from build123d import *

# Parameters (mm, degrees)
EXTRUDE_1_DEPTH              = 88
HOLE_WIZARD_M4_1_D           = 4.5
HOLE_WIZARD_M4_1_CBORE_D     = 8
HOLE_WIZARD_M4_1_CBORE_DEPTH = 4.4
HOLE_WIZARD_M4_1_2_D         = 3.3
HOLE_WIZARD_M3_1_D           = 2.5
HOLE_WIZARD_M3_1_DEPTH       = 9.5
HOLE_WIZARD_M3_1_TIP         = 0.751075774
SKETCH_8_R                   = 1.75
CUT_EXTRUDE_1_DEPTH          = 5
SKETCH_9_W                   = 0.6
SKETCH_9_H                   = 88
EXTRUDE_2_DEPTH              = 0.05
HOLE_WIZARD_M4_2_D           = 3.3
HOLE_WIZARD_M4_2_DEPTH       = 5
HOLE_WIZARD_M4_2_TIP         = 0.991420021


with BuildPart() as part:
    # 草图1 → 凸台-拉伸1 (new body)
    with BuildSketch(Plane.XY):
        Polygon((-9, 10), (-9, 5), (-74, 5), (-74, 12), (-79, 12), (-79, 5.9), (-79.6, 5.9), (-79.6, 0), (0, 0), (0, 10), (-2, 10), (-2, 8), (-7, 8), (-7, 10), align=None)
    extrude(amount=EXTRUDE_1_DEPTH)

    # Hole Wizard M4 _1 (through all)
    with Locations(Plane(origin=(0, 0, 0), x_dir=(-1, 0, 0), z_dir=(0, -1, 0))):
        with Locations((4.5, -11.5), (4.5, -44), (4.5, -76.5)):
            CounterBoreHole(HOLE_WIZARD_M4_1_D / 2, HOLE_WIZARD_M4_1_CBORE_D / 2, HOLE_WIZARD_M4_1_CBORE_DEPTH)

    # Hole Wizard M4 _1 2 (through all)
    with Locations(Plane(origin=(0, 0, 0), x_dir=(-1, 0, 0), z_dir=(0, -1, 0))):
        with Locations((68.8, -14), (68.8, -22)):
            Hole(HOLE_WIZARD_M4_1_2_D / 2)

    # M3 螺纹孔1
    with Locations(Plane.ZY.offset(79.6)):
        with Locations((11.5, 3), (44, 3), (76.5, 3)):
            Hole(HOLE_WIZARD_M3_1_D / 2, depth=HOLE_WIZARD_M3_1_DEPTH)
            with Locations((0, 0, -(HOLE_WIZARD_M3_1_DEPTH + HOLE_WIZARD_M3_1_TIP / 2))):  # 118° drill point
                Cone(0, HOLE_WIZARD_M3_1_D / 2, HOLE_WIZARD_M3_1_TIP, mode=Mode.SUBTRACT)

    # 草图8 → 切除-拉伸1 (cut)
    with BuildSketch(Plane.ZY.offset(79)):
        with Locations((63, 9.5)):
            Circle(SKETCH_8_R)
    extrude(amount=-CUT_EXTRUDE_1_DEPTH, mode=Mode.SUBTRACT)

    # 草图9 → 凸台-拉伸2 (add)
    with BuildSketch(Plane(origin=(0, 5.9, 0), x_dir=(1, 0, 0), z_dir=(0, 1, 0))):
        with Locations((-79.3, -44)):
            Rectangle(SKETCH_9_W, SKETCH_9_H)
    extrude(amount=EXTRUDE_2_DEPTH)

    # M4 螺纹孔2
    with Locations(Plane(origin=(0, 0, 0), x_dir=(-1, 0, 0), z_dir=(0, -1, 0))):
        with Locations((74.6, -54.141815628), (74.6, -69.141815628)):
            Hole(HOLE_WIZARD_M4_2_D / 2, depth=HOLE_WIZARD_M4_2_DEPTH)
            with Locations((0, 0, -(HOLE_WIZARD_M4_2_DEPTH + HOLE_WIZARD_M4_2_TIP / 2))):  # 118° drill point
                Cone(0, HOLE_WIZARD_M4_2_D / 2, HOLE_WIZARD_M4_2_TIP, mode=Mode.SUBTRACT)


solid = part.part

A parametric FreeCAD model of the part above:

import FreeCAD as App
import Part
import Sketcher
from FreeCAD import Vector


def add_polygon(sketch, points):
    """Adds a closed chain of lines whose ends are joined by coincident constraints."""
    first, n = sketch.GeometryCount, len(points)
    for a, b in zip(points, points[1:] + points[:1]):
        sketch.addGeometry(Part.LineSegment(App.Vector(*a, 0), App.Vector(*b, 0)), False)
    for i in range(n):
        sketch.addConstraint(Sketcher.Constraint("Coincident", first + i, 2, first + (i + 1) % n, 1))

doc = App.newDocument("Part")
params = doc.addObject("Spreadsheet::Sheet", "Params")
for row, (alias, value) in enumerate([
    ("sketch1_width", "65 mm"),
    ("sketch1_width2", "5 mm"),
    ("sketch1_width3", "2 mm"),
    ("sketch1_height", "7 mm"),
    ("sketch1_height2", "10 mm"),
    ("pad1_length", "88 mm"),
    ("sketch2_diameter", "4.5 mm"),
    ("hole_diameter", "4.5 mm"),
    ("hole_cbore_diameter", "8 mm"),
    ("hole_cbore_depth", "4.4 mm"),
    ("sketch3_diameter", "3.3 mm"),
    ("hole2_diameter", "3.3 mm"),
    ("sketch4_diameter", "2.5 mm"),
    ("hole3_diameter", "2.5 mm"),
    ("hole3_depth", "9.5 mm"),
    ("sketch5_diameter", "3.5 mm"),
    ("pocket1_length", "5 mm"),
    ("sketch6_height", "88 mm"),
    ("sketch6_width", "0.6 mm"),
    ("pad2_length", "0.05 mm"),
    ("sketch7_diameter", "3.3 mm"),
    ("hole4_diameter", "3.3 mm"),
    ("hole4_depth", "5 mm"),
], start=1):
    params.set(f"A{row}", alias)
    params.set(f"B{row}", "=" + value)
    params.setAlias(f"B{row}", alias)

body = doc.addObject("PartDesign::Body", "Body")

# Sketch on XY plane
sketch1 = body.newObject("Sketcher::SketchObject", "Sketch")
sketch1.AttachmentSupport = (doc.getObject("XY_Plane"), [""])
sketch1.MapMode = "FlatFace"
add_polygon(sketch1, [(-9, 10), (-9, 5), (-74, 5), (-74, 12), (-79, 12), (-79, 5.9), (-79.6, 5.9), (-79.6, 0), (0, 0), (0, 10), (-2, 10), (-2, 8), (-7, 8), (-7, 10)])  # lines 0-13
sketch1.addConstraint([
    Sketcher.Constraint("Vertical", 0),
    Sketcher.Constraint("Horizontal", 1),
    Sketcher.Constraint("Vertical", 2),
    Sketcher.Constraint("Horizontal", 3),
    Sketcher.Constraint("Vertical", 4),
    Sketcher.Constraint("Horizontal", 5),
    Sketcher.Constraint("Vertical", 6),
    Sketcher.Constraint("Horizontal", 7),
    Sketcher.Constraint("Vertical", 8),
    Sketcher.Constraint("Horizontal", 9),
    Sketcher.Constraint("Vertical", 10),
    Sketcher.Constraint("Horizontal", 11),
    Sketcher.Constraint("Vertical", 12),
    Sketcher.Constraint("Horizontal", 13),
    Sketcher.Constraint("Coincident", 7, 2, -1, 1),
    Sketcher.Constraint("Horizontal", 9, 2, 12, 2),
    Sketcher.Constraint("Equal", 3, 11),
    Sketcher.Constraint("Equal", 9, 13),
    Sketcher.Constraint("Equal", 11, 0),
    Sketcher.Constraint("Equal", 13, 10),
    Sketcher.Constraint("DistanceX", 1, 2, 1, 1, 65.0),
    Sketcher.Constraint("DistanceX", 3, 2, 3, 1, 5.0),
    Sketcher.Constraint("DistanceX", 9, 2, 9, 1, 2.0),
    Sketcher.Constraint("DistanceY", 2, 1, 2, 2, 7.0),
    Sketcher.Constraint("DistanceY", 8, 1, 8, 2, 10.0),
    Sketcher.Constraint("DistanceX", 5, 2, 5, 1, 0.6),
    Sketcher.Constraint("DistanceY", 4, 2, 4, 1, 6.1),
])
sketch1.setExpression("Constraints[34]", "Params.sketch1_width")
sketch1.setExpression("Constraints[35]", "Params.sketch1_width2")
sketch1.setExpression("Constraints[36]", "Params.sketch1_width3")
sketch1.setExpression("Constraints[37]", "Params.sketch1_height")
sketch1.setExpression("Constraints[38]", "Params.sketch1_height2")
pad1 = body.newObject("PartDesign::Pad", "Pad")
pad1.Profile = sketch1
pad1.setExpression("Length", "Params.pad1_length")

# Sketch on XZ plane
sketch2 = body.newObject("Sketcher::SketchObject", "Sketch001")
sketch2.AttachmentSupport = (doc.getObject("XZ_Plane"), [""])
sketch2.MapMode = "FlatFace"
sketch2.addGeometry([
    Part.Circle(Vector(-4.5, 11.5, 0), Vector(0, 0, 1), 2.2),
    Part.Circle(Vector(-4.5, 44, 0), Vector(0, 0, 1), 2.2),
    Part.Circle(Vector(-4.5, 76.5, 0), Vector(0, 0, 1), 2.2),
], False)
sketch2.addConstraint([
    Sketcher.Constraint("Equal", 0, 1),
    Sketcher.Constraint("Equal", 1, 2),
    Sketcher.Constraint("Vertical", 0, 3, 1, 3),
    Sketcher.Constraint("Vertical", 1, 3, 2, 3),
    Sketcher.Constraint("Diameter", 0, 4.5),
    Sketcher.Constraint("DistanceY", -1, 1, 1, 3, 44.0),
    Sketcher.Constraint("DistanceY", 0, 3, 2, 3, 65.0),
    Sketcher.Constraint("DistanceX", 0, 3, -1, 1, 4.5),
    Sketcher.Constraint("DistanceY", -1, 1, 0, 3, 11.5),
])
sketch2.setExpression("Constraints[4]", "Params.sketch2_diameter")
doc.recompute()
hole = body.newObject("PartDesign::Hole", "Hole")
hole.Profile = sketch2
hole.ThreadType = "None"
hole.setExpression("Diameter", "Params.hole_diameter")
hole.DepthType = "ThroughAll"
hole.HoleCutType = "Counterbore"
hole.setExpression("HoleCutDiameter", "Params.hole_cbore_diameter")
hole.setExpression("HoleCutDepth", "Params.hole_cbore_depth")

# Sketch on XZ plane
sketch3 = body.newObject("Sketcher::SketchObject", "Sketch002")
sketch3.AttachmentSupport = (doc.getObject("XZ_Plane"), [""])
sketch3.MapMode = "FlatFace"
sketch3.addGeometry([
    Part.Circle(Vector(-68.8, 14, 0), Vector(0, 0, 1), 1.6),
    Part.Circle(Vector(-68.8, 22, 0), Vector(0, 0, 1), 1.6),
], False)
sketch3.addConstraint([
    Sketcher.Constraint("Equal", 0, 1),
    Sketcher.Constraint("Vertical", 0, 3, 1, 3),
    Sketcher.Constraint("Diameter", 0, 3.3),
    Sketcher.Constraint("DistanceY", -1, 1, 0, 3, 14.0),
    Sketcher.Constraint("DistanceY", -1, 1, 1, 3, 22.0),
    Sketcher.Constraint("DistanceX", 0, 3, -1, 1, 68.8),
])
sketch3.setExpression("Constraints[2]", "Params.sketch3_diameter")
doc.recompute()
hole2 = body.newObject("PartDesign::Hole", "Hole001")
hole2.Profile = sketch3
hole2.ThreadType = "None"
hole2.setExpression("Diameter", "Params.hole2_diameter")
hole2.DepthType = "ThroughAll"

# Sketch on YZ plane
sketch4 = body.newObject("Sketcher::SketchObject", "Sketch003")
sketch4.AttachmentSupport = (doc.getObject("YZ_Plane"), [""])
sketch4.MapMode = "FlatFace"
sketch4.AttachmentOffset = App.Placement(Vector(0, 0, -79.6), App.Rotation())
sketch4.addGeometry([
    Part.Circle(Vector(3, 11.5, 0), Vector(0, 0, 1), 1.2),
    Part.Circle(Vector(3, 44, 0), Vector(0, 0, 1), 1.2),
    Part.Circle(Vector(3, 76.5, 0), Vector(0, 0, 1), 1.2),
], False)
sketch4.addConstraint([
    Sketcher.Constraint("Equal", 0, 1),
    Sketcher.Constraint("Equal", 1, 2),
    Sketcher.Constraint("Vertical", 0, 3, 1, 3),
    Sketcher.Constraint("Vertical", 1, 3, 2, 3),
    Sketcher.Constraint("Diameter", 0, 2.5),
    Sketcher.Constraint("DistanceX", -1, 1, 0, 3, 3.0),
    Sketcher.Constraint("DistanceY", -1, 1, 1, 3, 44.0),
    Sketcher.Constraint("DistanceY", 0, 3, 2, 3, 65.0),
    Sketcher.Constraint("DistanceY", -1, 1, 0, 3, 11.5),
])
sketch4.setExpression("Constraints[4]", "Params.sketch4_diameter")
doc.recompute()
hole3 = body.newObject("PartDesign::Hole", "Hole002")
hole3.Profile = sketch4
hole3.ThreadType = "None"
hole3.setExpression("Diameter", "Params.hole3_diameter")
hole3.DepthType = "Dimension"
hole3.setExpression("Depth", "Params.hole3_depth")
hole3.DrillPoint = "Angled"
hole3.DrillPointAngle = 118
hole3.Reversed = True

# Sketch on YZ plane
sketch5 = body.newObject("Sketcher::SketchObject", "Sketch004")
sketch5.AttachmentSupport = (doc.getObject("YZ_Plane"), [""])
sketch5.MapMode = "FlatFace"
sketch5.AttachmentOffset = App.Placement(Vector(0, 0, -79), App.Rotation())
sketch5.addGeometry(Part.Circle(Vector(9.5, 63, 0), Vector(0, 0, 1), 1.8), False)
sketch5.addConstraint([
    Sketcher.Constraint("Diameter", 0, 3.5),
    Sketcher.Constraint("DistanceY", -1, 1, 0, 3, 63.0),
    Sketcher.Constraint("DistanceX", -1, 1, 0, 3, 9.5),
])
sketch5.setExpression("Constraints[0]", "Params.sketch5_diameter")
pocket1 = body.newObject("PartDesign::Pocket", "Pocket")
pocket1.Profile = sketch5
pocket1.setExpression("Length", "Params.pocket1_length")
pocket1.Reversed = True

# Sketch on XZ plane
sketch6 = body.newObject("Sketcher::SketchObject", "Sketch005")
sketch6.AttachmentSupport = (doc.getObject("XZ_Plane"), [""])
sketch6.MapMode = "FlatFace"
sketch6.AttachmentOffset = App.Placement(Vector(0, 0, -5.9), App.Rotation())
add_polygon(sketch6, [(-79.6, 0), (-79.6, 88), (-79, 88), (-79, 0)])  # lines 0-3
sketch6.addConstraint([
    Sketcher.Constraint("Vertical", 0),
    Sketcher.Constraint("Horizontal", 1),
    Sketcher.Constraint("Vertical", 2),
    Sketcher.Constraint("Horizontal", 3),
    Sketcher.Constraint("PointOnObject", 2, 2, -1),
    Sketcher.Constraint("DistanceY", 0, 1, 0, 2, 88.0),
    Sketcher.Constraint("DistanceX", 1, 1, 1, 2, 0.6),
    Sketcher.Constraint("DistanceX", 1, 2, -1, 1, 79.0),
])
sketch6.setExpression("Constraints[9]", "Params.sketch6_height")
sketch6.setExpression("Constraints[10]", "Params.sketch6_width")
pad2 = body.newObject("PartDesign::Pad", "Pad001")
pad2.Profile = sketch6
pad2.setExpression("Length", "Params.pad2_length")
pad2.Reversed = True

# Sketch on XZ plane
sketch7 = body.newObject("Sketcher::SketchObject", "Sketch006")
sketch7.AttachmentSupport = (doc.getObject("XZ_Plane"), [""])
sketch7.MapMode = "FlatFace"
sketch7.addGeometry([
    Part.Circle(Vector(-74.6, 54.1, 0), Vector(0, 0, 1), 1.6),
    Part.Circle(Vector(-74.6, 69.1, 0), Vector(0, 0, 1), 1.6),
], False)
sketch7.addConstraint([
    Sketcher.Constraint("Equal", 0, 1),
    Sketcher.Constraint("Vertical", 0, 3, 1, 3),
    Sketcher.Constraint("Diameter", 0, 3.3),
    Sketcher.Constraint("DistanceY", 0, 3, 1, 3, 15.0),
    Sketcher.Constraint("DistanceX", 0, 3, -1, 1, 74.6),
    Sketcher.Constraint("DistanceY", -1, 1, 0, 3, 54.141816),
])
sketch7.setExpression("Constraints[2]", "Params.sketch7_diameter")
doc.recompute()
hole4 = body.newObject("PartDesign::Hole", "Hole003")
hole4.Profile = sketch7
hole4.ThreadType = "None"
hole4.setExpression("Diameter", "Params.hole4_diameter")
hole4.DepthType = "Dimension"
hole4.setExpression("Depth", "Params.hole4_depth")
hole4.DrillPoint = "Angled"
hole4.DrillPointAngle = 118

doc.recompute()
